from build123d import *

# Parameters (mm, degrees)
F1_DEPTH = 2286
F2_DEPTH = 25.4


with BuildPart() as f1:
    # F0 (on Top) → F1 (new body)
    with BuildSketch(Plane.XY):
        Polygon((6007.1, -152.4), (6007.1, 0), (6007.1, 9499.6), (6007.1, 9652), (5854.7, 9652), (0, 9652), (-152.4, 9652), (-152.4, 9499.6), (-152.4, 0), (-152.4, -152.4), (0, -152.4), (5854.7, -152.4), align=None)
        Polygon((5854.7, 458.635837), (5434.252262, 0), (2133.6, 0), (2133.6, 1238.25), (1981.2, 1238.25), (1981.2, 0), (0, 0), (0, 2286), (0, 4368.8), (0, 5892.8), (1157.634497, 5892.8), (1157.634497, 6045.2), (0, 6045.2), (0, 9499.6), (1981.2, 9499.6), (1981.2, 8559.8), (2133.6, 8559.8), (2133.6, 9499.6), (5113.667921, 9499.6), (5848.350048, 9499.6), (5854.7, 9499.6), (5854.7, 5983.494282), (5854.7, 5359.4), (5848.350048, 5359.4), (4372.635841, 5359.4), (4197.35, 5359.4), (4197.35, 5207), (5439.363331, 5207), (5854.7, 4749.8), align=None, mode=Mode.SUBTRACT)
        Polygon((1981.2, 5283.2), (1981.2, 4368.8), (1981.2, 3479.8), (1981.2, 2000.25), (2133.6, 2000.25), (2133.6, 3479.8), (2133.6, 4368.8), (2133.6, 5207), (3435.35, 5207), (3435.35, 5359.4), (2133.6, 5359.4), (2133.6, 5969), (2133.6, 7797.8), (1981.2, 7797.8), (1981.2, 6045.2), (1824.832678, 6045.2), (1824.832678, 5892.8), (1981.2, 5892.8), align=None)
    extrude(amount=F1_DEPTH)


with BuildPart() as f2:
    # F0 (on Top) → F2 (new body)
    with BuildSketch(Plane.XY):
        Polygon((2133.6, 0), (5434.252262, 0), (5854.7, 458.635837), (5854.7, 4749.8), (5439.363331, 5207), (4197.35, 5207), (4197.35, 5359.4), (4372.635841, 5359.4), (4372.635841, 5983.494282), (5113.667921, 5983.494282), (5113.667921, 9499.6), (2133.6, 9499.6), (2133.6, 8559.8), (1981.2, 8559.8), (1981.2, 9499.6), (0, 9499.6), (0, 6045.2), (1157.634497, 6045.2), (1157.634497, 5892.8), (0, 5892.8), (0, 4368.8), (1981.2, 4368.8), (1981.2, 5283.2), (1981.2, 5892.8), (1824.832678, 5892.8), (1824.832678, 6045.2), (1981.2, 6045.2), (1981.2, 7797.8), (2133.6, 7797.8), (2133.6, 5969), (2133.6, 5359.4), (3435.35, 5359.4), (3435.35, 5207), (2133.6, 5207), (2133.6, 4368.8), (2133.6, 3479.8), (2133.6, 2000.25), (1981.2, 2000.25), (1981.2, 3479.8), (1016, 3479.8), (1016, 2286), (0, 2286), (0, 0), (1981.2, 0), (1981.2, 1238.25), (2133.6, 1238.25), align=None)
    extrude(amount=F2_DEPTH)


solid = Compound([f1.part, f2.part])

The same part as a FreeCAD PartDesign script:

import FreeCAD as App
import Part
import Sketcher

V = App.Vector
Q = App.Units.Quantity


def add_polygon(sketch, points):
    """Adds a closed chain of lines whose ends are joined by coincident constraints."""
    first, n = sketch.GeometryCount, len(points)
    for a, b in zip(points, points[1:] + points[:1]):
        sketch.addGeometry(Part.LineSegment(App.Vector(*a, 0), App.Vector(*b, 0)), False)
    for i in range(n):
        sketch.addConstraint(Sketcher.Constraint("Coincident", first + i, 2, first + (i + 1) % n, 1))

doc = App.newDocument("Part")
params = doc.addObject("Spreadsheet::Sheet", "Params")
for row, (alias, value) in enumerate([
    ("sketch1_width", "6 in"),
    ("sketch1_width2", "78 in"),
    ("sketch1_height", "386 in"),
    ("sketch1_height2", "232 in"),
    ("sketch1_height3", "136 in"),
    ("pad1_length", "90 in"),
    ("sketch2_width", "6 in"),
    ("sketch2_width2", "78 in"),
    ("sketch2_width3", "38 in"),
    ("sketch2_height", "37 in"),
    ("sketch2_height2", "136 in"),
    ("pad2_length", "1 in"),
], start=1):
    params.set(f"A{row}", alias)
    params.set(f"B{row}", "=" + value)
    params.setAlias(f"B{row}", alias)

body = doc.addObject("PartDesign::Body", "Body")
body.AllowCompound = True

# Sketch on XY plane
sketch1 = doc.addObject("Sketcher::SketchObject", "Sketch")
body.addObject(sketch1)
sketch1.AttachmentSupport = (doc.XY_Plane, [""])
sketch1.MapMode = "FlatFace"
add_polygon(sketch1, [(6007, -152), (6007, 9652), (-152, 9652), (-152, -152)])  # lines 0-3
add_polygon(sketch1, [(5855, 4750), (5855, 459), (5434, 0), (2134, 0), (2134, 1238), (1981, 1238), (1981, 0), (0, 0), (0, 5893), (1158, 5893), (1158, 6045), (0, 6045), (0, 9500), (1981, 9500), (1981, 8560), (2134, 8560), (2134, 9500), (5855, 9500), (5855, 5359), (4197, 5359), (4197, 5207), (5439, 5207)])  # lines 4-25
add_polygon(sketch1, [(1981, 2000), (2134, 2000), (2134, 5207), (3435, 5207), (3435, 5359), (2134, 5359), (2134, 7798), (1981, 7798), (1981, 6045), (1825, 6045), (1825, 5893), (1981, 5893)])  # lines 26-37
sketch1.addConstraint([
    Sketcher.Constraint("Vertical", 0),
    Sketcher.Constraint("Horizontal", 1),
    Sketcher.Constraint("Vertical", 2),
    Sketcher.Constraint("Horizontal", 3),
    Sketcher.Constraint("Vertical", 4),
    Sketcher.Constraint("Horizontal", 6),
    Sketcher.Constraint("Vertical", 7),
    Sketcher.Constraint("Horizontal", 8),
    Sketcher.Constraint("Vertical", 9),
    Sketcher.Constraint("Horizontal", 10),
    Sketcher.Constraint("Vertical", 11),
    Sketcher.Constraint("Horizontal", 12),
    Sketcher.Constraint("Vertical", 13),
    Sketcher.Constraint("Horizontal", 14),
    Sketcher.Constraint("Vertical", 15),
    Sketcher.Constraint("Horizontal", 16),
    Sketcher.Constraint("Vertical", 17),
    Sketcher.Constraint("Horizontal", 18),
    Sketcher.Constraint("Vertical", 19),
    Sketcher.Constraint("Horizontal", 20),
    Sketcher.Constraint("Vertical", 21),
    Sketcher.Constraint("Horizontal", 22),
    Sketcher.Constraint("Vertical", 23),
    Sketcher.Constraint("Horizontal", 24),
    Sketcher.Constraint("Horizontal", 26),
    Sketcher.Constraint("Vertical", 27),
    Sketcher.Constraint("Horizontal", 28),
    Sketcher.Constraint("Vertical", 29),
    Sketcher.Constraint("Horizontal", 30),
    Sketcher.Constraint("Vertical", 31),
    Sketcher.Constraint("Horizontal", 32),
    Sketcher.Constraint("Vertical", 33),
    Sketcher.Constraint("Horizontal", 34),
    Sketcher.Constraint("Vertical", 35),
    Sketcher.Constraint("Horizontal", 36),
    Sketcher.Constraint("Vertical", 37),
    Sketcher.Constraint("Coincident", 10, 2, -1, 1),
    Sketcher.Constraint("PointOnObject", 5, 2, -1),
    Sketcher.Constraint("PointOnObject", 14, 2, -2),
    Sketcher.Constraint("Horizontal", 16, 2, 19, 2),
    Sketcher.Constraint("Horizontal", 24, 2, 27, 2),
    Sketcher.Constraint("Horizontal", 22, 2, 29, 2),
    Sketcher.Constraint("Horizontal", 14, 2, 33, 2),
    Sketcher.Constraint("Horizontal", 12, 2, 35, 2),
    Sketcher.Constraint("Vertical", 9, 2, 16, 2),
    Sketcher.Constraint("Vertical", 7, 2, 18, 2),
    Sketcher.Constraint("Vertical", 4, 2, 20, 2),
    Sketcher.Constraint("Vertical", 19, 2, 26, 2),
    Sketcher.Constraint("Vertical", 27, 2, 30, 2),
    Sketcher.Constraint("Vertical", 17, 2, 32, 2),
    Sketcher.Constraint("Vertical", 33, 2, 36, 2),
    Sketcher.Constraint("Equal", 32, 13),
    Sketcher.Constraint("Equal", 13, 23),
    Sketcher.Constraint("DistanceX", 8, 2, 8, 1, Q("6 in")),
    Sketcher.Constraint("DistanceX", 10, 2, 10, 1, Q("78 in")),
    Sketcher.Constraint("DistanceY", 0, 1, 0, 2, Q("386 in")),
    Sketcher.Constraint("DistanceY", 11, 1, 11, 2, Q("232 in")),
    Sketcher.Constraint("DistanceY", 15, 1, 15, 2, Q("136 in")),
    Sketcher.Constraint("DistanceY", 17, 2, 17, 1, Q("37 in")),
    Sketcher.Constraint("DistanceY", 21, 2, 21, 1, Q("163 in")),
    Sketcher.Constraint("DistanceY", 31, 1, 31, 2, Q("96 in")),
    Sketcher.Constraint("DistanceX", 1, 2, 1, 1, Q("242.5 in")),
    Sketcher.Constraint("DistanceX", 20, 1, 20, 2, Q("146.5 in")),
    Sketcher.Constraint("DistanceY", -1, 1, 0, 2, Q("380 in")),
    Sketcher.Constraint("DistanceX", 1, 2, -1, 1, Q("6 in")),
    Sketcher.Constraint("DistanceY", -1, 1, 25, 2, Q("187 in")),
    Sketcher.Constraint("DistanceY", 7, 2, 26, 2, Q("30 in")),
    Sketcher.Constraint("DistanceX", 28, 2, 23, 2, Q("30 in")),
    Sketcher.Constraint("DistanceX", 22, 2, 22, 1, Q("65.25 in")),
    Sketcher.Constraint("DistanceY", 7, 1, 7, 2, Q("48.75 in")),
    Sketcher.Constraint("Distance", 5, 622.192198),
    Sketcher.Constraint("DistanceX", 24, 1, 24, 2, 1242.013331),
    Sketcher.Constraint("DistanceX", 6, 2, 6, 1, 3300.652262),
    Sketcher.Constraint("DistanceX", 12, 1, 12, 2, 1157.634497),
    Sketcher.Constraint("DistanceX", 34, 2, 34, 1, 156.367322),
])
sketch1.setExpression("Constraints[91]", "Params.sketch1_width")
sketch1.setExpression("Constraints[92]", "Params.sketch1_width2")
sketch1.setExpression("Constraints[93]", "Params.sketch1_height")
sketch1.setExpression("Constraints[94]", "Params.sketch1_height2")
sketch1.setExpression("Constraints[95]", "Params.sketch1_height3")
pad1 = doc.addObject("PartDesign::Pad", "Pad")
body.addObject(pad1)
pad1.Profile = sketch1
pad1.setExpression("Length", "Params.pad1_length")
body2 = doc.addObject("PartDesign::Body", "Body001")

# Sketch on XY plane
sketch2 = doc.addObject("Sketcher::SketchObject", "Sketch001")
body2.addObject(sketch2)
sketch2.AttachmentSupport = (doc.getObject("XY_Plane001"), [""])
sketch2.MapMode = "FlatFace"
add_polygon(sketch2, [(2134, 0), (5434, 0), (5855, 459), (5855, 4750), (5439, 5207), (4197, 5207), (4197, 5359), (4373, 5359), (4373, 5983), (5114, 5983), (5114, 9500), (2134, 9500), (2134, 8560), (1981, 8560), (1981, 9500), (0, 9500), (0, 6045), (1158, 6045), (1158, 5893), (0, 5893), (0, 4369), (1981, 4369), (1981, 5893), (1825, 5893), (1825, 6045), (1981, 6045), (1981, 7798), (2134, 7798), (2134, 5359), (3435, 5359), (3435, 5207), (2134, 5207), (2134, 2000), (1981, 2000), (1981, 3480), (1016, 3480), (1016, 2286), (0, 2286), (0, 0), (1981, 0), (1981, 1238), (2134, 1238)])  # lines 0-41
sketch2.addConstraint([
    Sketcher.Constraint("Horizontal", 0),
    Sketcher.Constraint("Vertical", 2),
    Sketcher.Constraint("Horizontal", 4),
    Sketcher.Constraint("Vertical", 5),
    Sketcher.Constraint("Horizontal", 6),
    Sketcher.Constraint("Vertical", 7),
    Sketcher.Constraint("Horizontal", 8),
    Sketcher.Constraint("Vertical", 9),
    Sketcher.Constraint("Horizontal", 10),
    Sketcher.Constraint("Vertical", 11),
    Sketcher.Constraint("Horizontal", 12),
    Sketcher.Constraint("Vertical", 13),
    Sketcher.Constraint("Horizontal", 14),
    Sketcher.Constraint("Vertical", 15),
    Sketcher.Constraint("Horizontal", 16),
    Sketcher.Constraint("Vertical", 17),
    Sketcher.Constraint("Horizontal", 18),
    Sketcher.Constraint("Vertical", 19),
    Sketcher.Constraint("Horizontal", 20),
    Sketcher.Constraint("Vertical", 21),
    Sketcher.Constraint("Horizontal", 22),
    Sketcher.Constraint("Vertical", 23),
    Sketcher.Constraint("Horizontal", 24),
    Sketcher.Constraint("Vertical", 25),
    Sketcher.Constraint("Horizontal", 26),
    Sketcher.Constraint("Vertical", 27),
    Sketcher.Constraint("Horizontal", 28),
    Sketcher.Constraint("Vertical", 29),
    Sketcher.Constraint("Horizontal", 30),
    Sketcher.Constraint("Vertical", 31),
    Sketcher.Constraint("Horizontal", 32),
    Sketcher.Constraint("Vertical", 33),
    Sketcher.Constraint("Horizontal", 34),
    Sketcher.Constraint("Vertical", 35),
    Sketcher.Constraint("Horizontal", 36),
    Sketcher.Constraint("Vertical", 37),
    Sketcher.Constraint("Horizontal", 38),
    Sketcher.Constraint("Vertical", 39),
    Sketcher.Constraint("Horizontal", 40),
    Sketcher.Constraint("Vertical", 41),
    Sketcher.Constraint("Coincident", 37, 2, -1, 1),
    Sketcher.Constraint("PointOnObject", 0, 2, -1),
    Sketcher.Constraint("PointOnObject", 14, 2, -2),
    Sketcher.Constraint("PointOnObject", 18, 2, -2),
    Sketcher.Constraint("Horizontal", 10, 2, 13, 2),
    Sketcher.Constraint("Horizontal", 18, 2, 21, 2),
    Sketcher.Constraint("Horizontal", 16, 2, 23, 2),
    Sketcher.Constraint("Horizontal", 6, 2, 27, 2),
    Sketcher.Constraint("Horizontal", 4, 2, 29, 2),
    Sketcher.Constraint("Vertical", 13, 2, 20, 2),
    Sketcher.Constraint("Vertical", 21, 2, 24, 2),
    Sketcher.Constraint("Vertical", 11, 2, 26, 2),
    Sketcher.Constraint("Vertical", 27, 2, 30, 2),
    Sketcher.Constraint("Vertical", 25, 2, 32, 2),
    Sketcher.Constraint("Vertical", 33, 2, 38, 2),
    Sketcher.Constraint("Vertical", 31, 2, 40, 2),
    Sketcher.Constraint("Equal", 40, 5),
    Sketcher.Constraint("Equal", 5, 17),
    Sketcher.Constraint("DistanceX", 12, 2, 12, 1, Q("6 in")),
    Sketcher.Constraint("DistanceX", 14, 2, 14, 1, Q("78 in")),
    Sketcher.Constraint("DistanceX", 34, 2, 34, 1, Q("38 in")),
    Sketcher.Constraint("DistanceY", 11, 2, 11, 1, Q("37 in")),
    Sketcher.Constraint("DistanceY", 15, 2, 15, 1, Q("136 in")),
    Sketcher.Constraint("DistanceY", 19, 2, 19, 1, Q("60 in")),
    Sketcher.Constraint("DistanceY", 25, 1, 25, 2, Q("69 in")),
    Sketcher.Constraint("DistanceY", 27, 2, 27, 1, Q("96 in")),
    Sketcher.Constraint("DistanceY", 35, 2, 35, 1, Q("47 in")),
    Sketcher.Constraint("DistanceY", 37, 2, 37, 1, Q("90 in")),
    Sketcher.Constraint("DistanceY", -1, 1, 2, 2, Q("187 in")),
    Sketcher.Constraint("DistanceY", -1, 1, 3, 2, Q("205 in")),
    Sketcher.Constraint("DistanceX", 28, 2, 5, 2, Q("30 in")),
    Sketcher.Constraint("DistanceY", 39, 2, 32, 2, Q("30 in")),
    Sketcher.Constraint("DistanceX", 28, 1, 28, 2, Q("51.25 in")),
    Sketcher.Constraint("DistanceY", 31, 2, 31, 1, Q("126.25 in")),
    Sketcher.Constraint("DistanceX", -1, 1, 1, 2, Q("230.5 in")),
    Sketcher.Constraint("Distance", 1, 622.192198),
    Sketcher.Constraint("DistanceX", 4, 2, 4, 1, 1242.013331),
    Sketcher.Constraint("DistanceX", 6, 1, 6, 2, 175.285841),
    Sketcher.Constraint("DistanceX", 8, 1, 8, 2, 741.03208),
    Sketcher.Constraint("DistanceY", 7, 1, 7, 2, 624.094282),
    Sketcher.Constraint("DistanceX", 0, 1, 0, 2, 3300.652262),
    Sketcher.Constraint("DistanceX", 16, 1, 16, 2, 1157.634497),
    Sketcher.Constraint("DistanceX", 22, 2, 22, 1, 156.367322),
])
sketch2.setExpression("Constraints[100]", "Params.sketch2_width")
sketch2.setExpression("Constraints[101]", "Params.sketch2_width2")
sketch2.setExpression("Constraints[102]", "Params.sketch2_width3")
sketch2.setExpression("Constraints[103]", "Params.sketch2_height")
sketch2.setExpression("Constraints[104]", "Params.sketch2_height2")
pad2 = doc.addObject("PartDesign::Pad", "Pad001")
body2.addObject(pad2)
pad2.Profile = sketch2
pad2.setExpression("Length", "Params.pad2_length")

doc.recompute()
